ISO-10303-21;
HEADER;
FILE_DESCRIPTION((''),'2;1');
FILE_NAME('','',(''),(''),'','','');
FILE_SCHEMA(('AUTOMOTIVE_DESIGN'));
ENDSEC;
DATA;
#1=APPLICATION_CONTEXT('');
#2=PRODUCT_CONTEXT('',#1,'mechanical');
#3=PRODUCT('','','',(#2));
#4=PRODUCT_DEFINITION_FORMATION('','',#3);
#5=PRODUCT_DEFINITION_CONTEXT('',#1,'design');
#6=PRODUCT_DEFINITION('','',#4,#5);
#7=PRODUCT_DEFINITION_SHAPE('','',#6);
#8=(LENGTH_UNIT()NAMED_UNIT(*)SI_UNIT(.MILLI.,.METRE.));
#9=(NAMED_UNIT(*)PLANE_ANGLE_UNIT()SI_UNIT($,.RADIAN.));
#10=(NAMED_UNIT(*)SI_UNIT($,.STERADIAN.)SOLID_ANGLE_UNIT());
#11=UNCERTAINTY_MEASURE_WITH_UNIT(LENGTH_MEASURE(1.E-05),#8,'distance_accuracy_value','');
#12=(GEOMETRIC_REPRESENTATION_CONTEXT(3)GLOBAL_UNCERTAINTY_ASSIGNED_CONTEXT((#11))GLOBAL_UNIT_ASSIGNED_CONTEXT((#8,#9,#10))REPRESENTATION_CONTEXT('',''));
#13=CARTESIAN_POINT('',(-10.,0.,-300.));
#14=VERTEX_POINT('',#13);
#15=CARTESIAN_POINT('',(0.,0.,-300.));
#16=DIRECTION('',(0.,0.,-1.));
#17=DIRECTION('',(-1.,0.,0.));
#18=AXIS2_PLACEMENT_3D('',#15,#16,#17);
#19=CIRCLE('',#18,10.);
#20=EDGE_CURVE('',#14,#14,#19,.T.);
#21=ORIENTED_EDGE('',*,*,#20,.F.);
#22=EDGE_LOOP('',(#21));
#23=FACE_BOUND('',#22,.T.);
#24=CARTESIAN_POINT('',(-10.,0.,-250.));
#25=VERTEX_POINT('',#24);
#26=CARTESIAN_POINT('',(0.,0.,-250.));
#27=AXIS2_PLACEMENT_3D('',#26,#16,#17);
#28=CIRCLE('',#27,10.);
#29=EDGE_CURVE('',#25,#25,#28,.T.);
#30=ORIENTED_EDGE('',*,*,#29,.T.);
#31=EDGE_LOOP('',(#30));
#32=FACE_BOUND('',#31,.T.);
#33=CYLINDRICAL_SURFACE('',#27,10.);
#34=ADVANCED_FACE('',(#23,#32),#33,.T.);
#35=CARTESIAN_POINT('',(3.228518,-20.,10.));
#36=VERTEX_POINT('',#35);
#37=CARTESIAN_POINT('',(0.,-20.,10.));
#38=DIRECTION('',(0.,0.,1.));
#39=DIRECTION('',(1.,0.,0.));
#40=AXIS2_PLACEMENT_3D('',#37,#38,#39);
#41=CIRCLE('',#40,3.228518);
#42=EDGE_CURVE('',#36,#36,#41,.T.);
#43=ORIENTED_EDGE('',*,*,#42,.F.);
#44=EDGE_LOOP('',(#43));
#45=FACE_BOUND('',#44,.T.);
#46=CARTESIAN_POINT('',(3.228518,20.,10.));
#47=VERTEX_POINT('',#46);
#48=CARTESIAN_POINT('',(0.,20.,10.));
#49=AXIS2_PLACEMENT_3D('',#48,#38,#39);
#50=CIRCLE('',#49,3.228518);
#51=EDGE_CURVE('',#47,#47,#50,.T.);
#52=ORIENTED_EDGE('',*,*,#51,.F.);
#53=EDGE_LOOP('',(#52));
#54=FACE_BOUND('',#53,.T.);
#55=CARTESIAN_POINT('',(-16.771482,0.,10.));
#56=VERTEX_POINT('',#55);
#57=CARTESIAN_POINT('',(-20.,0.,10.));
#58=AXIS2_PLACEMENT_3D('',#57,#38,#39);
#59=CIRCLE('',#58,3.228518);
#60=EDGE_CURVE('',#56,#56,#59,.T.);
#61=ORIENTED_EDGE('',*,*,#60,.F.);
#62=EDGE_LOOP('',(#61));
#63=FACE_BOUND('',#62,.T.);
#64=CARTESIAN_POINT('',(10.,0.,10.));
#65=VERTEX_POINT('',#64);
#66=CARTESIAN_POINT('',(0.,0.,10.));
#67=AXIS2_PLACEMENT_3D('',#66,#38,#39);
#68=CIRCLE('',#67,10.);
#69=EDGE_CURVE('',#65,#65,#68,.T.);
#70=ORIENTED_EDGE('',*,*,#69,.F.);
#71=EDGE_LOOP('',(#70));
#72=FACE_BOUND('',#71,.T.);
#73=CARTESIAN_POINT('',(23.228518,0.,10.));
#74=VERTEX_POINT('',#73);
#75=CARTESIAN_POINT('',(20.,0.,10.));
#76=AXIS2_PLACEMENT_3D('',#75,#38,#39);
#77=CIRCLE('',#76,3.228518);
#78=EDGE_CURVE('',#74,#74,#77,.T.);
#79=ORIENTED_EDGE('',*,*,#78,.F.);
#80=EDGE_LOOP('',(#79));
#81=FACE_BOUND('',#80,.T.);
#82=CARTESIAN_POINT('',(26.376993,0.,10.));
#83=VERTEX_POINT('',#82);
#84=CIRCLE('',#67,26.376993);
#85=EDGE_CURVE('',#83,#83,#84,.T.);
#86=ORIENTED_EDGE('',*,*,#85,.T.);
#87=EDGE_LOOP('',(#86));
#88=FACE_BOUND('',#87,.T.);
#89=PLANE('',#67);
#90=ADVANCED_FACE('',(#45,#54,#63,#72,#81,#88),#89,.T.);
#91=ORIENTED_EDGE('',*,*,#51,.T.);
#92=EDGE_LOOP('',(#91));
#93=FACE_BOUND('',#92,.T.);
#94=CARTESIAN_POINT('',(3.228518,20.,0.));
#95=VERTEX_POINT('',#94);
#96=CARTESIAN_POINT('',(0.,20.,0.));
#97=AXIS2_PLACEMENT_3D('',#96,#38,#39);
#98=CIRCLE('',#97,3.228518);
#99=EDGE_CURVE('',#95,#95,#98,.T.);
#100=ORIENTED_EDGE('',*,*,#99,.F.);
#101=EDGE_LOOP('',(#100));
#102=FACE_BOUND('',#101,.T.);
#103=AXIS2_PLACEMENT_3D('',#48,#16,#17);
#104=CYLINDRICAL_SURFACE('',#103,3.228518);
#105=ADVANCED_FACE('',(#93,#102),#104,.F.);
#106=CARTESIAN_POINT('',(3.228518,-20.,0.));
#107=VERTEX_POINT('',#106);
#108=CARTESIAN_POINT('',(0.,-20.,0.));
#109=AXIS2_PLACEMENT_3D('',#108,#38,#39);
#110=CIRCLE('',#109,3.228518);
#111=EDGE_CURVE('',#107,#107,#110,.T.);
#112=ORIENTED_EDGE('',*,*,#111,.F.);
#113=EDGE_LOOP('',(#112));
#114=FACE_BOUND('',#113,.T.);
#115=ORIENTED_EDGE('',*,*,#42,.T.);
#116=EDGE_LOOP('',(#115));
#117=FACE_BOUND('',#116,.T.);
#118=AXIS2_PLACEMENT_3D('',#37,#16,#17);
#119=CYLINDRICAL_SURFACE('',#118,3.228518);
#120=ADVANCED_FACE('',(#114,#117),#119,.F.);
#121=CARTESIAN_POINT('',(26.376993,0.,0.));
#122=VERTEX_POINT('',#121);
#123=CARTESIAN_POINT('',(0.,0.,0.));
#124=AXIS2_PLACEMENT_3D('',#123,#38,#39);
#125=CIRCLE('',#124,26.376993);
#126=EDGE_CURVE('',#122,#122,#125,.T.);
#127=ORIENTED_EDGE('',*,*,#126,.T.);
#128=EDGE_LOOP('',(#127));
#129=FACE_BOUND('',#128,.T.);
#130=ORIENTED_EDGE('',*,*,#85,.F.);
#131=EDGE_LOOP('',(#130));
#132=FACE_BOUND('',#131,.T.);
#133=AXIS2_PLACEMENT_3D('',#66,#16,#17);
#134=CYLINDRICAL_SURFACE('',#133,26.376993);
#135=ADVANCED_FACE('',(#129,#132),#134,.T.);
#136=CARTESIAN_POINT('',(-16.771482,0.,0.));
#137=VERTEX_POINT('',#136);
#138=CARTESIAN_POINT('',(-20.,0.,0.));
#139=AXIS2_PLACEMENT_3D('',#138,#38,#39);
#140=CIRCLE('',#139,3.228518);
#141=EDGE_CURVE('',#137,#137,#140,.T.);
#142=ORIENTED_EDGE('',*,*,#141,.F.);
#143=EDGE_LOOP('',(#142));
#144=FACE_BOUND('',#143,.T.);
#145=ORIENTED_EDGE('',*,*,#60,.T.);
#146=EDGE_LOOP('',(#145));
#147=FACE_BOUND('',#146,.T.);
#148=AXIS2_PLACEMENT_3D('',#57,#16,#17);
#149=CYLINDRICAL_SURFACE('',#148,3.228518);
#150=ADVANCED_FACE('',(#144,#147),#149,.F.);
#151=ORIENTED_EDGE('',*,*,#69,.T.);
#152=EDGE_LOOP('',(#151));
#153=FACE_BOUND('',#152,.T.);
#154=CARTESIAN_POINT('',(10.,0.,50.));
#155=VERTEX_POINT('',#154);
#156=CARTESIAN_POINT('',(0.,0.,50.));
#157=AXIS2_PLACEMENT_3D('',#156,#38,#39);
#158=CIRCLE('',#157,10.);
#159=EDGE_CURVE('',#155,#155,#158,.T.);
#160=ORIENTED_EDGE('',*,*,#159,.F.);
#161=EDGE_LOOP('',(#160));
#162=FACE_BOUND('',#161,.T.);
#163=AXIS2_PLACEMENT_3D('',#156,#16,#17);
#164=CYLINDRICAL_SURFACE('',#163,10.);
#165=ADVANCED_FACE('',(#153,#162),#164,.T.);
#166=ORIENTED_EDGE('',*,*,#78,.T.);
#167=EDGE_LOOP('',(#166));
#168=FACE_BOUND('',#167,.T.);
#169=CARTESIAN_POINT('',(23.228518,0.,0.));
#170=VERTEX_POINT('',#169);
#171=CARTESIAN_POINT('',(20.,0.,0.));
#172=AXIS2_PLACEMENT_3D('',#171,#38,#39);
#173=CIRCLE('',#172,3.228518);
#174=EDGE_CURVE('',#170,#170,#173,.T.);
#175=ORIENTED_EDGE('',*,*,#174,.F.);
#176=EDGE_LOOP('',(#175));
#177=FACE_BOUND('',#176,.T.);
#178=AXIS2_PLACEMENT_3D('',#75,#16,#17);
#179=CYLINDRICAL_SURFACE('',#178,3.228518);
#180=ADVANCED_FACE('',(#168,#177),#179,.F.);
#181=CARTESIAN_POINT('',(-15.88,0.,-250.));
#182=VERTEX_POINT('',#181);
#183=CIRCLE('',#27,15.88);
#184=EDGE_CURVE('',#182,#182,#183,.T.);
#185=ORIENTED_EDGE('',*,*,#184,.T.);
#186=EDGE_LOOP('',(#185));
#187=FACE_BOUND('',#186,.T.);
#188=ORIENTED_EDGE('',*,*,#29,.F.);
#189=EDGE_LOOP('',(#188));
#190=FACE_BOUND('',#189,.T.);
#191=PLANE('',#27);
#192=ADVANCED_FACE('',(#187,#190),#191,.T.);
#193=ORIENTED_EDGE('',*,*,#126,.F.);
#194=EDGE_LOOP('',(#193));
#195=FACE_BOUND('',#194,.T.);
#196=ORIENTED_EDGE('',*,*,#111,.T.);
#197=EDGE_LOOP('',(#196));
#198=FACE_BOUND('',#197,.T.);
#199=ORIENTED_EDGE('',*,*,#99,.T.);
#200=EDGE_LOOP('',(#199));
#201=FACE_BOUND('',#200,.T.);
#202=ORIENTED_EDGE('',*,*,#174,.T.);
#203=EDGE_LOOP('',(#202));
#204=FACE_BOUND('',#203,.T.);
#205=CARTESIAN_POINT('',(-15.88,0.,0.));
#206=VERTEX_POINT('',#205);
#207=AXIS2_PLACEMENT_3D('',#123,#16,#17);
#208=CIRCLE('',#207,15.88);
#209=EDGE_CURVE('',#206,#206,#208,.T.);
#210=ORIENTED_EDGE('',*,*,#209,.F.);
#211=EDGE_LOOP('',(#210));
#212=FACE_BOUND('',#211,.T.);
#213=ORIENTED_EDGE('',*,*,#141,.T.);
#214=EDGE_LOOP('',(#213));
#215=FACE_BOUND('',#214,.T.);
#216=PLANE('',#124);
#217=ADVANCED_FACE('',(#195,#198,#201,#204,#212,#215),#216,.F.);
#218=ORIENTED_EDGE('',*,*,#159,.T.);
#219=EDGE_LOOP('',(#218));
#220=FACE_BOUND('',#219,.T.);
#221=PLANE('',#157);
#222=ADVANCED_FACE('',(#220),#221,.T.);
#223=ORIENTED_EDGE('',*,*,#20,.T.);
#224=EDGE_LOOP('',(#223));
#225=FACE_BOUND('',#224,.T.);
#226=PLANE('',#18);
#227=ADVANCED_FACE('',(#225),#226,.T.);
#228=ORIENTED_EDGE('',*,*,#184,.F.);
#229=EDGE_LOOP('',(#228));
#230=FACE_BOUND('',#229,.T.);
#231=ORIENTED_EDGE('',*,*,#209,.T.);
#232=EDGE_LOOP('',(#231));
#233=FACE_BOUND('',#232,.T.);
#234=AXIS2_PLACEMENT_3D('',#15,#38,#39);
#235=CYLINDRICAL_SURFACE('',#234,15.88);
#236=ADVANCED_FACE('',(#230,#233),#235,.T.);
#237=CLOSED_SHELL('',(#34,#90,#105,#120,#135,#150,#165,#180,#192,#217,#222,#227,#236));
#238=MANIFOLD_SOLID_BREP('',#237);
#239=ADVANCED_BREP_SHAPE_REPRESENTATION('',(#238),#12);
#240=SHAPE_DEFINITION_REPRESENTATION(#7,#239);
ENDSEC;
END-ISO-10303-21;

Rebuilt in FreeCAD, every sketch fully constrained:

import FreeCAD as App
import Part
import Sketcher

V = App.Vector

doc = App.newDocument("Part")
body = doc.addObject("PartDesign::Body", "Body")

# Sketch on XY plane
sketch1 = doc.addObject("Sketcher::SketchObject", "Sketch")
body.addObject(sketch1)
sketch1.AttachmentSupport = (doc.XY_Plane, [""])
sketch1.MapMode = "FlatFace"
sketch1.addGeometry([
    Part.Circle(V(0, 0, 0), V(0, 0, 1), 26.376993),  # 0
    Part.Circle(V(-20, 0, 0), V(0, 0, 1), 3.228518),  # 1
    Part.Circle(V(0, -20, 0), V(0, 0, 1), 3.228518),  # 2
    Part.Circle(V(20, 0, 0), V(0, 0, 1), 3.228518),  # 3
    Part.Circle(V(0, 20, 0), V(0, 0, 1), 3.228518),  # 4
], False)
sketch1.addConstraint([
    Sketcher.Constraint("Coincident", 0, 3, -1, 1),
    Sketcher.Constraint("Equal", 1, 2),
    Sketcher.Constraint("Equal", 2, 3),
    Sketcher.Constraint("Equal", 3, 4),
    Sketcher.Constraint("Symmetric", 1, 3, 3, 3, -1, 1),
    Sketcher.Constraint("Symmetric", 2, 3, 4, 3, -1, 1),
    Sketcher.Constraint("PointOnObject", 1, 3, -1),
    Sketcher.Constraint("PointOnObject", 2, 3, -2),
    Sketcher.Constraint("DistanceX", 1, 3, -1, 1, 20.0),
    Sketcher.Constraint("DistanceY", 2, 3, -1, 1, 20.0),
    Sketcher.Constraint("Diameter", 0, 52.753986),
    Sketcher.Constraint("Diameter", 1, 6.457036),
])
pad1 = doc.addObject("PartDesign::Pad", "Pad")
body.addObject(pad1)
pad1.Profile = sketch1
pad1.Length = 10

# Sketch on XY plane
sketch2 = doc.addObject("Sketcher::SketchObject", "Sketch001")
body.addObject(sketch2)
sketch2.AttachmentSupport = (doc.XY_Plane, [""])
sketch2.MapMode = "FlatFace"
sketch2.AttachmentOffset = App.Placement(V(0, 0, 10), App.Rotation())
sketch2.addGeometry(Part.Circle(V(0, 0, 0), V(0, 0, 1), 10), False)
sketch2.addConstraint([
    Sketcher.Constraint("Coincident", 0, 3, -1, 1),
    Sketcher.Constraint("Diameter", 0, 20.0),
])
pad2 = doc.addObject("PartDesign::Pad", "Pad001")
body.addObject(pad2)
pad2.Profile = sketch2
pad2.Length = 40

# Sketch on XY plane
sketch3 = doc.addObject("Sketcher::SketchObject", "Sketch002")
body.addObject(sketch3)
sketch3.AttachmentSupport = (doc.XY_Plane, [""])
sketch3.MapMode = "FlatFace"
sketch3.addGeometry(Part.Circle(V(0, 0, 0), V(0, 0, 1), 15.88), False)
sketch3.addConstraint([
    Sketcher.Constraint("Coincident", 0, 3, -1, 1),
    Sketcher.Constraint("Diameter", 0, 31.76),
])
pad3 = doc.addObject("PartDesign::Pad", "Pad002")
body.addObject(pad3)
pad3.Profile = sketch3
pad3.Length = 300
pad3.Reversed = True

# Sketch on XY plane
sketch4 = doc.addObject("Sketcher::SketchObject", "Sketch003")
body.addObject(sketch4)
sketch4.AttachmentSupport = (doc.XY_Plane, [""])
sketch4.MapMode = "FlatFace"
sketch4.AttachmentOffset = App.Placement(V(0, 0, -300), App.Rotation())
sketch4.addGeometry([
    Part.Circle(V(0, 0, 0), V(0, 0, 1), 15.88),
    Part.Circle(V(0, 0, 0), V(0, 0, 1), 10),
], False)
sketch4.addConstraint([
    Sketcher.Constraint("Coincident", 0, 3, -1, 1),
    Sketcher.Constraint("Coincident", 1, 3, -1, 1),
    Sketcher.Constraint("Diameter", 1, 20.0),
    Sketcher.Constraint("Diameter", 0, 31.76),
])
pocket1 = doc.addObject("PartDesign::Pocket", "Pocket")
body.addObject(pocket1)
pocket1.Profile = sketch4
pocket1.Length = 50
pocket1.Reversed = True

doc.recompute()
